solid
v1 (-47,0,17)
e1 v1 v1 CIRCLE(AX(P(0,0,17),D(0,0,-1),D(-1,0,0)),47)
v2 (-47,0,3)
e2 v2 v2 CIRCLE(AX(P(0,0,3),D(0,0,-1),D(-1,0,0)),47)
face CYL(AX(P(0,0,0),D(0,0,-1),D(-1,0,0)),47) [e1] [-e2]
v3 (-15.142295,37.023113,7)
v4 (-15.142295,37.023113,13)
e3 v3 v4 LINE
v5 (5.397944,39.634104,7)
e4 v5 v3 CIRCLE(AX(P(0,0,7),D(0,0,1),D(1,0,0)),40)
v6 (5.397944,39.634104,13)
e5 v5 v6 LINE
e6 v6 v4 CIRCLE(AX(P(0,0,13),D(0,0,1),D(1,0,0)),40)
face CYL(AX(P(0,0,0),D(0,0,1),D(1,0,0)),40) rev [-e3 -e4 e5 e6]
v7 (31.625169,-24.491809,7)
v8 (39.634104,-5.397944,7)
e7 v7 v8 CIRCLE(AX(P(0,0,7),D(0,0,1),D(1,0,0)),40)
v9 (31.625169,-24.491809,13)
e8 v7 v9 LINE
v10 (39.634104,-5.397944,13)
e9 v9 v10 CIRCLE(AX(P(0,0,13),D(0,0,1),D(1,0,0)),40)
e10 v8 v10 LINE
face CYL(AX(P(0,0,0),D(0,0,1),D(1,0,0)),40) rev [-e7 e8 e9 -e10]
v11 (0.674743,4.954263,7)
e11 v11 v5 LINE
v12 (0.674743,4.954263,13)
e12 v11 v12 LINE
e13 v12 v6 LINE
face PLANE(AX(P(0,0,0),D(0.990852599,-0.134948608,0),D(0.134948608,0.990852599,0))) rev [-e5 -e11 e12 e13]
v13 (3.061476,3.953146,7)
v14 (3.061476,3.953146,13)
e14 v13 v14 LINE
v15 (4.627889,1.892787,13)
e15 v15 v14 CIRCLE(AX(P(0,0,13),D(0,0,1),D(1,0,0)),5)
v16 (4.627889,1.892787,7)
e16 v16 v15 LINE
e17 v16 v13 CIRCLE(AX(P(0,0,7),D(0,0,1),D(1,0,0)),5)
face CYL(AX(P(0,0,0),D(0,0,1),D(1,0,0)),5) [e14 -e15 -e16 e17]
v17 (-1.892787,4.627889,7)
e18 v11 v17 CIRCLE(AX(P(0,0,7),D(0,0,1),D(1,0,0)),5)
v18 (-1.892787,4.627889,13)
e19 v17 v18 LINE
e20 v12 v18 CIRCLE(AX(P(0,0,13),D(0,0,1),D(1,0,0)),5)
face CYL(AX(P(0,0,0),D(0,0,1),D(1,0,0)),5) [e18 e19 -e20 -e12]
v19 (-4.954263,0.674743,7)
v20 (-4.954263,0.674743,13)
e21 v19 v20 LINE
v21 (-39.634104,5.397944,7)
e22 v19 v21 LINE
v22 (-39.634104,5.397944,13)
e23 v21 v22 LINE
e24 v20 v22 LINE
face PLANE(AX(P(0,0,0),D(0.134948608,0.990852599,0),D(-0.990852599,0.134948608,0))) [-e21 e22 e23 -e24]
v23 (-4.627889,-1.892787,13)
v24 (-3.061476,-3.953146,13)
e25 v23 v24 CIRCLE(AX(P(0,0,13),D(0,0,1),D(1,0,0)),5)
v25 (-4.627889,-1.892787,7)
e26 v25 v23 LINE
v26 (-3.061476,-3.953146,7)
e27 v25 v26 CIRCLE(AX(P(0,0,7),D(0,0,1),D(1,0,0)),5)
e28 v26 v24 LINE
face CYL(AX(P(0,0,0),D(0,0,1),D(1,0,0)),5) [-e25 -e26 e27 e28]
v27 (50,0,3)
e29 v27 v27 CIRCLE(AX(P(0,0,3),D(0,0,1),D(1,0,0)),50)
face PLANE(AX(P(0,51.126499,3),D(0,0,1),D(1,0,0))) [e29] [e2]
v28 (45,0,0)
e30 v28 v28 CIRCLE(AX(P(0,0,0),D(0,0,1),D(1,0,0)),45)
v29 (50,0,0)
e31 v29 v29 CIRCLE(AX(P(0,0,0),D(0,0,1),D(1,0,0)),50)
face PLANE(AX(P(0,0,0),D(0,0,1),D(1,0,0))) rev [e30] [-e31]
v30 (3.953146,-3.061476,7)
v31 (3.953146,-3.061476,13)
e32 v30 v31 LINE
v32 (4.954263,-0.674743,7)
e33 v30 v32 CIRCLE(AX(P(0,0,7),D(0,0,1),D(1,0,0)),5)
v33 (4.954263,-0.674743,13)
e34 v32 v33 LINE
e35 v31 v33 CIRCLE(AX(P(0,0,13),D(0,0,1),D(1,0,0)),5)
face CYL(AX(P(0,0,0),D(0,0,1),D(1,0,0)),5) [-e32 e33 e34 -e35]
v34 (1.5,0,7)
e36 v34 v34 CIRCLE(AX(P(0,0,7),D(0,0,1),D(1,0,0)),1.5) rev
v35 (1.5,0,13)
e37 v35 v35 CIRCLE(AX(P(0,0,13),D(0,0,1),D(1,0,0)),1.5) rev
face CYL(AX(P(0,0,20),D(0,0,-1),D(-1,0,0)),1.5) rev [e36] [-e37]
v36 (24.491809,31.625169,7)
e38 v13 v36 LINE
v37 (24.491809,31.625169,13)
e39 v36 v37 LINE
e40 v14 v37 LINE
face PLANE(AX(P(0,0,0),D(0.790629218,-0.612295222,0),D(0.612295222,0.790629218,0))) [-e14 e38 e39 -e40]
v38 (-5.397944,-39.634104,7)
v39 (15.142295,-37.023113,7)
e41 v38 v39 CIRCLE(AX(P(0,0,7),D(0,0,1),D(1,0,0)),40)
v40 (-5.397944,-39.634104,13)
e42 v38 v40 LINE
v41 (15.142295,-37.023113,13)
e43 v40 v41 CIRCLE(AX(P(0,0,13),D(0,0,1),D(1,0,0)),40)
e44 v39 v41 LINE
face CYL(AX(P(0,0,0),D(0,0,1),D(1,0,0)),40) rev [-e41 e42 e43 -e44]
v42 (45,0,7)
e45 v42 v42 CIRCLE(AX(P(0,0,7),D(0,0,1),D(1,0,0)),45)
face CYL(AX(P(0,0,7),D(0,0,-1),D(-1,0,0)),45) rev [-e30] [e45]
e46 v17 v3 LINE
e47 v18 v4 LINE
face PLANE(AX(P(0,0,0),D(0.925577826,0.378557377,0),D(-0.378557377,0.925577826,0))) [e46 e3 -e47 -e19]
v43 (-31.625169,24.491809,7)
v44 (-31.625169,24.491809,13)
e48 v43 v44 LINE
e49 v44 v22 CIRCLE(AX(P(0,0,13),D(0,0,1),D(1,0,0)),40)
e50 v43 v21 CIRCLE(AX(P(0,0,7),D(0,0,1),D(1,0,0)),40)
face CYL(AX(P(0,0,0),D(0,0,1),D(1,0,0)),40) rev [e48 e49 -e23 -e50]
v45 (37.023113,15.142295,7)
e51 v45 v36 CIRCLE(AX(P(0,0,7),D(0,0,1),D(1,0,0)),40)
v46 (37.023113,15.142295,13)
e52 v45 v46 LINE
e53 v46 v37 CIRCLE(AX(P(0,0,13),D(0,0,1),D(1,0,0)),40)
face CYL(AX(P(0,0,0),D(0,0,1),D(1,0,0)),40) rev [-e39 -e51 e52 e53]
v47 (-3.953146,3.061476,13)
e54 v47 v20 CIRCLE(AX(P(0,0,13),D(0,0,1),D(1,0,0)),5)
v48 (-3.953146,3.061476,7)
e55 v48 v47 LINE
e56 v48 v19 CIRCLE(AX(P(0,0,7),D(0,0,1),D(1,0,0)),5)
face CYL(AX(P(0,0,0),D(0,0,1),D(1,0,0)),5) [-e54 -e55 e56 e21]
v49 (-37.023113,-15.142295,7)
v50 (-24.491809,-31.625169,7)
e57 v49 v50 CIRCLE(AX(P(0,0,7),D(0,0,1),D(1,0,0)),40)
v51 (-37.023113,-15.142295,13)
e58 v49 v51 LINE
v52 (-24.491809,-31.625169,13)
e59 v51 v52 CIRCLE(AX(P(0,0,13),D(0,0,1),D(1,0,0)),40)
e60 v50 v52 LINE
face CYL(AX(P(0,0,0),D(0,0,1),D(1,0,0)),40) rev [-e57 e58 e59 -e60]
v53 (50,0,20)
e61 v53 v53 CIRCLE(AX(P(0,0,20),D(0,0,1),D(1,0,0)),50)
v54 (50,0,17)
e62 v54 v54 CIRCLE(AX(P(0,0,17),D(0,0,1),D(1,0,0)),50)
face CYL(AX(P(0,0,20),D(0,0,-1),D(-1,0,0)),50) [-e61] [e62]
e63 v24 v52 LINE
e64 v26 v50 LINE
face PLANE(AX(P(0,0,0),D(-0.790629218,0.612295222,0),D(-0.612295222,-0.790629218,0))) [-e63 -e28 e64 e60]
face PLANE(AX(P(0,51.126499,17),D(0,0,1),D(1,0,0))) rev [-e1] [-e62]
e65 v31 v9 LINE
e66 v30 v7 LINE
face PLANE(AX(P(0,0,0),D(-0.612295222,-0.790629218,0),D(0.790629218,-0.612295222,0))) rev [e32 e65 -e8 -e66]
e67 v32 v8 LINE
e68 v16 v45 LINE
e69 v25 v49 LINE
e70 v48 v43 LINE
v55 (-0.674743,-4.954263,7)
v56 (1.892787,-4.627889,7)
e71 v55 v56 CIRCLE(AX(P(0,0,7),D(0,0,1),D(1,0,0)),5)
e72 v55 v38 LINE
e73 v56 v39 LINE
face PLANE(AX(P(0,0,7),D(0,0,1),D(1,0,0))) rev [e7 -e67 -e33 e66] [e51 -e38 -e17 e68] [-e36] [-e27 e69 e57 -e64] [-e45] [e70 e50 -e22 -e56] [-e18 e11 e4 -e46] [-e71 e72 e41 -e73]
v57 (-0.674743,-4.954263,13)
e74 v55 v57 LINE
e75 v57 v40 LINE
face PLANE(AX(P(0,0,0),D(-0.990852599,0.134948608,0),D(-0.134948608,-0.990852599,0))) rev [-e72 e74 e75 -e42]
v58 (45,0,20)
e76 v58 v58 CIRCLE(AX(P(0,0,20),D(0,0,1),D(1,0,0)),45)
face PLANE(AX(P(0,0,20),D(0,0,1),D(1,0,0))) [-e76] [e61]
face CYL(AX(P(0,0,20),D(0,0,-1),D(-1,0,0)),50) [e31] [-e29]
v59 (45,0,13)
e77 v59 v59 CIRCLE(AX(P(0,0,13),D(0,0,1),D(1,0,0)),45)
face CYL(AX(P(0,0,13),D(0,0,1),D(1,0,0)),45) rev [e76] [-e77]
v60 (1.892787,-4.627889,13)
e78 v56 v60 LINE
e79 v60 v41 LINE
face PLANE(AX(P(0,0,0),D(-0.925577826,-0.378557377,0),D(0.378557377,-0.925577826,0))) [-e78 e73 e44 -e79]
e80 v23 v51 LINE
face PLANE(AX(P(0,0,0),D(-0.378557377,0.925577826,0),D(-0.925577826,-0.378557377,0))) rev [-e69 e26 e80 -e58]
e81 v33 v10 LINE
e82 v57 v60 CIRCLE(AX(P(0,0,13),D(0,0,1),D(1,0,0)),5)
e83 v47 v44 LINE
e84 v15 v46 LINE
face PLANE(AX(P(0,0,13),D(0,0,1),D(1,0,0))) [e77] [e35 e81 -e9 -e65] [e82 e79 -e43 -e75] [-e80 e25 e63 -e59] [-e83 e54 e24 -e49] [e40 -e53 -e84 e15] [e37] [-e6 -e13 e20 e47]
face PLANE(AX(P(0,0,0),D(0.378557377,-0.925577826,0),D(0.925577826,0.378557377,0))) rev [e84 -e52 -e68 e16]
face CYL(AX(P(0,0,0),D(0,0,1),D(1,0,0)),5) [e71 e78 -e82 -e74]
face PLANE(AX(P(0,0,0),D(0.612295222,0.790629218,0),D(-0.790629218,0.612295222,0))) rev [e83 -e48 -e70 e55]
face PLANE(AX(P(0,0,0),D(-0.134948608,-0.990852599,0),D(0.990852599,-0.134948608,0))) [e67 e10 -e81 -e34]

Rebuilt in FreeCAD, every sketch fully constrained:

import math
import FreeCAD as App
import Part
import Sketcher

doc = App.newDocument("Part")
body = doc.addObject("PartDesign::Body", "Body")

# Sketch on XY plane
sketch1 = body.newObject("Sketcher::SketchObject", "Sketch")
sketch1.AttachmentSupport = (doc.getObject("XY_Plane"), [""])
sketch1.MapMode = "FlatFace"
sketch1.addGeometry(Part.Circle(App.Vector(0, 0, 0), App.Vector(0, 0, 1), 50), False)
sketch1.addConstraint(Sketcher.Constraint("Coincident", 0, 3, -1, 1))
sketch1.addConstraint(Sketcher.Constraint("Diameter", 0, 100.0))
pad1 = body.newObject("PartDesign::Pad", "Pad")
pad1.Profile = sketch1
pad1.Length = 20

# Sketch on XY plane
sketch2 = body.newObject("Sketcher::SketchObject", "Sketch001")
sketch2.AttachmentSupport = (doc.getObject("XY_Plane"), [""])
sketch2.MapMode = "FlatFace"
sketch2.addGeometry(Part.Circle(App.Vector(0, 0, 0), App.Vector(0, 0, 1), 45), False)
sketch2.addConstraint(Sketcher.Constraint("Coincident", 0, 3, -1, 1))
sketch2.addConstraint(Sketcher.Constraint("Diameter", 0, 90.0))
pocket1 = body.newObject("PartDesign::Pocket", "Pocket")
pocket1.Profile = sketch2
pocket1.Length = 7
pocket1.Reversed = True

# Sketch on XY plane
sketch3 = body.newObject("Sketcher::SketchObject", "Sketch002")
sketch3.AttachmentSupport = (doc.getObject("XY_Plane"), [""])
sketch3.MapMode = "FlatFace"
sketch3.AttachmentOffset = App.Placement(App.Vector(0, 0, 20), App.Rotation())
sketch3.addGeometry(Part.Circle(App.Vector(0, 0, 0), App.Vector(0, 0, 1), 45), False)
sketch3.addConstraint(Sketcher.Constraint("Coincident", 0, 3, -1, 1))
sketch3.addConstraint(Sketcher.Constraint("Diameter", 0, 90.0))
pocket2 = body.newObject("PartDesign::Pocket", "Pocket001")
pocket2.Profile = sketch3
pocket2.Length = 7

# Sketch on XY plane
sketch4 = body.newObject("Sketcher::SketchObject", "Sketch003")
sketch4.AttachmentSupport = (doc.getObject("XY_Plane"), [""])
sketch4.MapMode = "FlatFace"
sketch4.AttachmentOffset = App.Placement(App.Vector(0, 0, 13), App.Rotation())
sketch4.addGeometry(Part.ArcOfCircle(Part.Circle(App.Vector(0, 0, 0), App.Vector(0, 0, 1), 5), math.radians(22), math.radians(52)), False)
sketch4.addGeometry(Part.LineSegment(App.Vector(4.6, 1.9, 0), App.Vector(37, 15.1, 0)), False)
sketch4.addGeometry(Part.ArcOfCircle(Part.Circle(App.Vector(0, 0, 0), App.Vector(0, 0, 1), 40), math.radians(22), math.radians(52)), False)
sketch4.addGeometry(Part.LineSegment(App.Vector(24.5, 31.6, 0), App.Vector(3.1, 4, 0)), False)
sketch4.addGeometry(Part.ArcOfCircle(Part.Circle(App.Vector(0, 0, 0), App.Vector(0, 0, 1), 5), math.radians(82), math.radians(112)), False)
sketch4.addGeometry(Part.LineSegment(App.Vector(0.7, 5, 0), App.Vector(5.4, 39.6, 0)), False)
sketch4.addGeometry(Part.ArcOfCircle(Part.Circle(App.Vector(0, 0, 0), App.Vector(0, 0, 1), 40), math.radians(82), math.radians(112)), False)
sketch4.addGeometry(Part.LineSegment(App.Vector(-15.1, 37, 0), App.Vector(-1.9, 4.6, 0)), False)
sketch4.addGeometry(Part.ArcOfCircle(Part.Circle(App.Vector(0, 0, 0), App.Vector(0, 0, 1), 5), math.radians(142), math.radians(172)), False)
sketch4.addGeometry(Part.LineSegment(App.Vector(-4, 3.1, 0), App.Vector(-31.6, 24.5, 0)), False)
sketch4.addGeometry(Part.ArcOfCircle(Part.Circle(App.Vector(0, 0, 0), App.Vector(0, 0, 1), 40), math.radians(142), math.radians(172)), False)
sketch4.addGeometry(Part.LineSegment(App.Vector(-39.6, 5.4, 0), App.Vector(-5, 0.7, 0)), False)
sketch4.addGeometry(Part.LineSegment(App.Vector(-24.5, -31.6, 0), App.Vector(-3.1, -4, 0)), False)
sketch4.addGeometry(Part.ArcOfCircle(Part.Circle(App.Vector(0, 0, 0), App.Vector(0, 0, 1), 5), math.radians(-158), math.radians(-128)), False)
sketch4.addGeometry(Part.LineSegment(App.Vector(-4.6, -1.9, 0), App.Vector(-37, -15.1, 0)), False)
sketch4.addGeometry(Part.ArcOfCircle(Part.Circle(App.Vector(0, 0, 0), App.Vector(0, 0, 1), 40), math.radians(-158), math.radians(-128)), False)
sketch4.addGeometry(Part.LineSegment(App.Vector(15.1, -37, 0), App.Vector(1.9, -4.6, 0)), False)
sketch4.addGeometry(Part.ArcOfCircle(Part.Circle(App.Vector(0, 0, 0), App.Vector(0, 0, 1), 5), math.radians(-98), math.radians(-68)), False)
sketch4.addGeometry(Part.LineSegment(App.Vector(-0.7, -5, 0), App.Vector(-5.4, -39.6, 0)), False)
sketch4.addGeometry(Part.ArcOfCircle(Part.Circle(App.Vector(0, 0, 0), App.Vector(0, 0, 1), 40), math.radians(-98), math.radians(-68)), False)
sketch4.addGeometry(Part.LineSegment(App.Vector(39.6, -5.4, 0), App.Vector(5, -0.7, 0)), False)
sketch4.addGeometry(Part.ArcOfCircle(Part.Circle(App.Vector(0, 0, 0), App.Vector(0, 0, 1), 5), math.radians(-38), math.radians(-8)), False)
sketch4.addGeometry(Part.LineSegment(App.Vector(4, -3.1, 0), App.Vector(31.6, -24.5, 0)), False)
sketch4.addGeometry(Part.ArcOfCircle(Part.Circle(App.Vector(0, 0, 0), App.Vector(0, 0, 1), 40), math.radians(-38), math.radians(-8)), False)
sketch4.addConstraint(Sketcher.Constraint("Coincident", 0, 1, 1, 1))
sketch4.addConstraint(Sketcher.Constraint("Coincident", 1, 2, 2, 1))
sketch4.addConstraint(Sketcher.Constraint("Coincident", 2, 2, 3, 1))
sketch4.addConstraint(Sketcher.Constraint("Coincident", 3, 2, 0, 2))
sketch4.addConstraint(Sketcher.Constraint("Coincident", 4, 1, 5, 1))
sketch4.addConstraint(Sketcher.Constraint("Coincident", 5, 2, 6, 1))
sketch4.addConstraint(Sketcher.Constraint("Coincident", 6, 2, 7, 1))
sketch4.addConstraint(Sketcher.Constraint("Coincident", 7, 2, 4, 2))
sketch4.addConstraint(Sketcher.Constraint("Coincident", 8, 1, 9, 1))
sketch4.addConstraint(Sketcher.Constraint("Coincident", 9, 2, 10, 1))
sketch4.addConstraint(Sketcher.Constraint("Coincident", 10, 2, 11, 1))
sketch4.addConstraint(Sketcher.Constraint("Coincident", 11, 2, 8, 2))
sketch4.addConstraint(Sketcher.Constraint("Coincident", 12, 2, 13, 2))
sketch4.addConstraint(Sketcher.Constraint("Coincident", 13, 1, 14, 1))
sketch4.addConstraint(Sketcher.Constraint("Coincident", 14, 2, 15, 1))
sketch4.addConstraint(Sketcher.Constraint("Coincident", 15, 2, 12, 1))
sketch4.addConstraint(Sketcher.Constraint("Coincident", 16, 2, 17, 2))
sketch4.addConstraint(Sketcher.Constraint("Coincident", 17, 1, 18, 1))
sketch4.addConstraint(Sketcher.Constraint("Coincident", 18, 2, 19, 1))
sketch4.addConstraint(Sketcher.Constraint("Coincident", 19, 2, 16, 1))
sketch4.addConstraint(Sketcher.Constraint("Coincident", 20, 2, 21, 2))
sketch4.addConstraint(Sketcher.Constraint("Coincident", 21, 1, 22, 1))
sketch4.addConstraint(Sketcher.Constraint("Coincident", 22, 2, 23, 1))
sketch4.addConstraint(Sketcher.Constraint("Coincident", 23, 2, 20, 1))
sketch4.addConstraint(Sketcher.Constraint("Coincident", 0, 3, -1, 1))
sketch4.addConstraint(Sketcher.Constraint("Coincident", 2, 3, -1, 1))
sketch4.addConstraint(Sketcher.Constraint("Coincident", 4, 3, -1, 1))
sketch4.addConstraint(Sketcher.Constraint("Coincident", 6, 3, -1, 1))
sketch4.addConstraint(Sketcher.Constraint("Coincident", 8, 3, -1, 1))
sketch4.addConstraint(Sketcher.Constraint("Coincident", 10, 3, -1, 1))
sketch4.addConstraint(Sketcher.Constraint("Coincident", 13, 3, -1, 1))
sketch4.addConstraint(Sketcher.Constraint("Coincident", 15, 3, -1, 1))
sketch4.addConstraint(Sketcher.Constraint("Coincident", 17, 3, -1, 1))
sketch4.addConstraint(Sketcher.Constraint("Coincident", 19, 3, -1, 1))
sketch4.addConstraint(Sketcher.Constraint("Coincident", 21, 3, -1, 1))
sketch4.addConstraint(Sketcher.Constraint("Coincident", 23, 3, -1, 1))
sketch4.addConstraint(Sketcher.Constraint("Equal", 0, 4))
sketch4.addConstraint(Sketcher.Constraint("Equal", 2, 6))
sketch4.addConstraint(Sketcher.Constraint("Equal", 4, 8))
sketch4.addConstraint(Sketcher.Constraint("Equal", 6, 10))
sketch4.addConstraint(Sketcher.Constraint("Equal", 8, 13))
sketch4.addConstraint(Sketcher.Constraint("Equal", 10, 15))
sketch4.addConstraint(Sketcher.Constraint("Equal", 13, 17))
sketch4.addConstraint(Sketcher.Constraint("Equal", 15, 19))
sketch4.addConstraint(Sketcher.Constraint("Equal", 17, 21))
sketch4.addConstraint(Sketcher.Constraint("Equal", 19, 23))
sketch4.addConstraint(Sketcher.Constraint("Perpendicular", 1, 7))
sketch4.addConstraint(Sketcher.Constraint("Perpendicular", 3, 9))
sketch4.addConstraint(Sketcher.Constraint("Perpendicular", 5, 11))
sketch4.addConstraint(Sketcher.Constraint("Perpendicular", 9, 12))
sketch4.addConstraint(Sketcher.Constraint("Perpendicular", 7, 14))
sketch4.addConstraint(Sketcher.Constraint("Perpendicular", 14, 16))
sketch4.addConstraint(Sketcher.Constraint("Perpendicular", 11, 18))
sketch4.addConstraint(Sketcher.Constraint("Perpendicular", 18, 20))
sketch4.addConstraint(Sketcher.Constraint("Perpendicular", 12, 22))
sketch4.addConstraint(Sketcher.Constraint("Radius", 0, 5.0))
sketch4.addConstraint(Sketcher.Constraint("Radius", 2, 40.0))
sketch4.addConstraint(Sketcher.Constraint("DistanceX", 4, 1, 5, 2, 4.723201))
sketch4.addConstraint(Sketcher.Constraint("DistanceX", -1, 1, 0, 1, 4.627889))
sketch4.addConstraint(Sketcher.Constraint("DistanceX", -1, 1, 2, 2, 24.491809))
sketch4.addConstraint(Sketcher.Constraint("DistanceY", -1, 1, 7, 2, 4.627889))
sketch4.addConstraint(Sketcher.Constraint("DistanceX", 9, 2, -1, 1, 31.625169))
sketch4.addConstraint(Sketcher.Constraint("DistanceX", 13, 1, -1, 1, 4.627889))
sketch4.addConstraint(Sketcher.Constraint("DistanceX", 15, 2, -1, 1, 24.491809))
sketch4.addConstraint(Sketcher.Constraint("DistanceY", 16, 2, -1, 1, 4.627889))
sketch4.addConstraint(Sketcher.Constraint("DistanceX", -1, 1, 22, 2, 31.625169))
sketch4.addConstraint(Sketcher.Constraint("DistanceY", 0, 1, 1, 2, 13.249508))
sketch4.addConstraint(Sketcher.Constraint("DistanceY", 0, 1, 3, 2, 2.060359))
sketch4.addConstraint(Sketcher.Constraint("DistanceX", 3, 2, 5, 2, 2.336468))
sketch4.addConstraint(Sketcher.Constraint("DistanceY", 8, 1, 10, 2, 2.336468))
sketch4.addConstraint(Sketcher.Constraint("DistanceX", 17, 1, 16, 2, 2.56753))
sketch4.addConstraint(Sketcher.Constraint("DistanceY", 20, 2, 0, 1, 2.56753))
pocket3 = body.newObject("PartDesign::Pocket", "Pocket002")
pocket3.Profile = sketch4
pocket3.Type = "ThroughAll"

# Sketch on YZ plane
sketch5 = body.newObject("Sketcher::SketchObject", "Sketch004")
sketch5.AttachmentSupport = (doc.getObject("YZ_Plane"), [""])
sketch5.MapMode = "FlatFace"
sketch5.addGeometry(Part.LineSegment(App.Vector(51.1, 17, 0), App.Vector(47, 17, 0)), False)
sketch5.addGeometry(Part.LineSegment(App.Vector(47, 17, 0), App.Vector(47, 3, 0)), False)
sketch5.addGeometry(Part.LineSegment(App.Vector(47, 3, 0), App.Vector(51.1, 3, 0)), False)
sketch5.addGeometry(Part.LineSegment(App.Vector(51.1, 3, 0), App.Vector(51.1, 17, 0)), False)
sketch5.addConstraint(Sketcher.Constraint("Coincident", 0, 2, 1, 1))
sketch5.addConstraint(Sketcher.Constraint("Coincident", 1, 2, 2, 1))
sketch5.addConstraint(Sketcher.Constraint("Coincident", 2, 2, 3, 1))
sketch5.addConstraint(Sketcher.Constraint("Coincident", 3, 2, 0, 1))
sketch5.addConstraint(Sketcher.Constraint("Horizontal", 0))
sketch5.addConstraint(Sketcher.Constraint("Vertical", 1))
sketch5.addConstraint(Sketcher.Constraint("Horizontal", 2))
sketch5.addConstraint(Sketcher.Constraint("Vertical", 3))
sketch5.addConstraint(Sketcher.Constraint("DistanceY", 1, 2, 1, 1, 14.0))
sketch5.addConstraint(Sketcher.Constraint("DistanceX", -1, 1, 0, 2, 47.0))
sketch5.addConstraint(Sketcher.Constraint("DistanceY", -1, 1, 0, 2, 17.0))
sketch5.addConstraint(Sketcher.Constraint("DistanceX", 0, 2, 0, 1, 4.126499))
groove = body.newObject("PartDesign::Groove", "Groove")
groove.Profile = sketch5
groove.ReferenceAxis = (sketch5, ["V_Axis"])
groove.Angle = 360

# Sketch on XY plane
sketch6 = body.newObject("Sketcher::SketchObject", "Sketch005")
sketch6.AttachmentSupport = (doc.getObject("XY_Plane"), [""])
sketch6.MapMode = "FlatFace"
sketch6.addGeometry(Part.Circle(App.Vector(0, 0, 0), App.Vector(0, 0, 1), 1.5), False)
sketch6.addConstraint(Sketcher.Constraint("Coincident", 0, 3, -1, 1))
sketch6.addConstraint(Sketcher.Constraint("Diameter", 0, 3.0))
pocket4 = body.newObject("PartDesign::Pocket", "Pocket003")
pocket4.Profile = sketch6
pocket4.Type = "ThroughAll"
pocket4.Reversed = True

doc.recompute()
